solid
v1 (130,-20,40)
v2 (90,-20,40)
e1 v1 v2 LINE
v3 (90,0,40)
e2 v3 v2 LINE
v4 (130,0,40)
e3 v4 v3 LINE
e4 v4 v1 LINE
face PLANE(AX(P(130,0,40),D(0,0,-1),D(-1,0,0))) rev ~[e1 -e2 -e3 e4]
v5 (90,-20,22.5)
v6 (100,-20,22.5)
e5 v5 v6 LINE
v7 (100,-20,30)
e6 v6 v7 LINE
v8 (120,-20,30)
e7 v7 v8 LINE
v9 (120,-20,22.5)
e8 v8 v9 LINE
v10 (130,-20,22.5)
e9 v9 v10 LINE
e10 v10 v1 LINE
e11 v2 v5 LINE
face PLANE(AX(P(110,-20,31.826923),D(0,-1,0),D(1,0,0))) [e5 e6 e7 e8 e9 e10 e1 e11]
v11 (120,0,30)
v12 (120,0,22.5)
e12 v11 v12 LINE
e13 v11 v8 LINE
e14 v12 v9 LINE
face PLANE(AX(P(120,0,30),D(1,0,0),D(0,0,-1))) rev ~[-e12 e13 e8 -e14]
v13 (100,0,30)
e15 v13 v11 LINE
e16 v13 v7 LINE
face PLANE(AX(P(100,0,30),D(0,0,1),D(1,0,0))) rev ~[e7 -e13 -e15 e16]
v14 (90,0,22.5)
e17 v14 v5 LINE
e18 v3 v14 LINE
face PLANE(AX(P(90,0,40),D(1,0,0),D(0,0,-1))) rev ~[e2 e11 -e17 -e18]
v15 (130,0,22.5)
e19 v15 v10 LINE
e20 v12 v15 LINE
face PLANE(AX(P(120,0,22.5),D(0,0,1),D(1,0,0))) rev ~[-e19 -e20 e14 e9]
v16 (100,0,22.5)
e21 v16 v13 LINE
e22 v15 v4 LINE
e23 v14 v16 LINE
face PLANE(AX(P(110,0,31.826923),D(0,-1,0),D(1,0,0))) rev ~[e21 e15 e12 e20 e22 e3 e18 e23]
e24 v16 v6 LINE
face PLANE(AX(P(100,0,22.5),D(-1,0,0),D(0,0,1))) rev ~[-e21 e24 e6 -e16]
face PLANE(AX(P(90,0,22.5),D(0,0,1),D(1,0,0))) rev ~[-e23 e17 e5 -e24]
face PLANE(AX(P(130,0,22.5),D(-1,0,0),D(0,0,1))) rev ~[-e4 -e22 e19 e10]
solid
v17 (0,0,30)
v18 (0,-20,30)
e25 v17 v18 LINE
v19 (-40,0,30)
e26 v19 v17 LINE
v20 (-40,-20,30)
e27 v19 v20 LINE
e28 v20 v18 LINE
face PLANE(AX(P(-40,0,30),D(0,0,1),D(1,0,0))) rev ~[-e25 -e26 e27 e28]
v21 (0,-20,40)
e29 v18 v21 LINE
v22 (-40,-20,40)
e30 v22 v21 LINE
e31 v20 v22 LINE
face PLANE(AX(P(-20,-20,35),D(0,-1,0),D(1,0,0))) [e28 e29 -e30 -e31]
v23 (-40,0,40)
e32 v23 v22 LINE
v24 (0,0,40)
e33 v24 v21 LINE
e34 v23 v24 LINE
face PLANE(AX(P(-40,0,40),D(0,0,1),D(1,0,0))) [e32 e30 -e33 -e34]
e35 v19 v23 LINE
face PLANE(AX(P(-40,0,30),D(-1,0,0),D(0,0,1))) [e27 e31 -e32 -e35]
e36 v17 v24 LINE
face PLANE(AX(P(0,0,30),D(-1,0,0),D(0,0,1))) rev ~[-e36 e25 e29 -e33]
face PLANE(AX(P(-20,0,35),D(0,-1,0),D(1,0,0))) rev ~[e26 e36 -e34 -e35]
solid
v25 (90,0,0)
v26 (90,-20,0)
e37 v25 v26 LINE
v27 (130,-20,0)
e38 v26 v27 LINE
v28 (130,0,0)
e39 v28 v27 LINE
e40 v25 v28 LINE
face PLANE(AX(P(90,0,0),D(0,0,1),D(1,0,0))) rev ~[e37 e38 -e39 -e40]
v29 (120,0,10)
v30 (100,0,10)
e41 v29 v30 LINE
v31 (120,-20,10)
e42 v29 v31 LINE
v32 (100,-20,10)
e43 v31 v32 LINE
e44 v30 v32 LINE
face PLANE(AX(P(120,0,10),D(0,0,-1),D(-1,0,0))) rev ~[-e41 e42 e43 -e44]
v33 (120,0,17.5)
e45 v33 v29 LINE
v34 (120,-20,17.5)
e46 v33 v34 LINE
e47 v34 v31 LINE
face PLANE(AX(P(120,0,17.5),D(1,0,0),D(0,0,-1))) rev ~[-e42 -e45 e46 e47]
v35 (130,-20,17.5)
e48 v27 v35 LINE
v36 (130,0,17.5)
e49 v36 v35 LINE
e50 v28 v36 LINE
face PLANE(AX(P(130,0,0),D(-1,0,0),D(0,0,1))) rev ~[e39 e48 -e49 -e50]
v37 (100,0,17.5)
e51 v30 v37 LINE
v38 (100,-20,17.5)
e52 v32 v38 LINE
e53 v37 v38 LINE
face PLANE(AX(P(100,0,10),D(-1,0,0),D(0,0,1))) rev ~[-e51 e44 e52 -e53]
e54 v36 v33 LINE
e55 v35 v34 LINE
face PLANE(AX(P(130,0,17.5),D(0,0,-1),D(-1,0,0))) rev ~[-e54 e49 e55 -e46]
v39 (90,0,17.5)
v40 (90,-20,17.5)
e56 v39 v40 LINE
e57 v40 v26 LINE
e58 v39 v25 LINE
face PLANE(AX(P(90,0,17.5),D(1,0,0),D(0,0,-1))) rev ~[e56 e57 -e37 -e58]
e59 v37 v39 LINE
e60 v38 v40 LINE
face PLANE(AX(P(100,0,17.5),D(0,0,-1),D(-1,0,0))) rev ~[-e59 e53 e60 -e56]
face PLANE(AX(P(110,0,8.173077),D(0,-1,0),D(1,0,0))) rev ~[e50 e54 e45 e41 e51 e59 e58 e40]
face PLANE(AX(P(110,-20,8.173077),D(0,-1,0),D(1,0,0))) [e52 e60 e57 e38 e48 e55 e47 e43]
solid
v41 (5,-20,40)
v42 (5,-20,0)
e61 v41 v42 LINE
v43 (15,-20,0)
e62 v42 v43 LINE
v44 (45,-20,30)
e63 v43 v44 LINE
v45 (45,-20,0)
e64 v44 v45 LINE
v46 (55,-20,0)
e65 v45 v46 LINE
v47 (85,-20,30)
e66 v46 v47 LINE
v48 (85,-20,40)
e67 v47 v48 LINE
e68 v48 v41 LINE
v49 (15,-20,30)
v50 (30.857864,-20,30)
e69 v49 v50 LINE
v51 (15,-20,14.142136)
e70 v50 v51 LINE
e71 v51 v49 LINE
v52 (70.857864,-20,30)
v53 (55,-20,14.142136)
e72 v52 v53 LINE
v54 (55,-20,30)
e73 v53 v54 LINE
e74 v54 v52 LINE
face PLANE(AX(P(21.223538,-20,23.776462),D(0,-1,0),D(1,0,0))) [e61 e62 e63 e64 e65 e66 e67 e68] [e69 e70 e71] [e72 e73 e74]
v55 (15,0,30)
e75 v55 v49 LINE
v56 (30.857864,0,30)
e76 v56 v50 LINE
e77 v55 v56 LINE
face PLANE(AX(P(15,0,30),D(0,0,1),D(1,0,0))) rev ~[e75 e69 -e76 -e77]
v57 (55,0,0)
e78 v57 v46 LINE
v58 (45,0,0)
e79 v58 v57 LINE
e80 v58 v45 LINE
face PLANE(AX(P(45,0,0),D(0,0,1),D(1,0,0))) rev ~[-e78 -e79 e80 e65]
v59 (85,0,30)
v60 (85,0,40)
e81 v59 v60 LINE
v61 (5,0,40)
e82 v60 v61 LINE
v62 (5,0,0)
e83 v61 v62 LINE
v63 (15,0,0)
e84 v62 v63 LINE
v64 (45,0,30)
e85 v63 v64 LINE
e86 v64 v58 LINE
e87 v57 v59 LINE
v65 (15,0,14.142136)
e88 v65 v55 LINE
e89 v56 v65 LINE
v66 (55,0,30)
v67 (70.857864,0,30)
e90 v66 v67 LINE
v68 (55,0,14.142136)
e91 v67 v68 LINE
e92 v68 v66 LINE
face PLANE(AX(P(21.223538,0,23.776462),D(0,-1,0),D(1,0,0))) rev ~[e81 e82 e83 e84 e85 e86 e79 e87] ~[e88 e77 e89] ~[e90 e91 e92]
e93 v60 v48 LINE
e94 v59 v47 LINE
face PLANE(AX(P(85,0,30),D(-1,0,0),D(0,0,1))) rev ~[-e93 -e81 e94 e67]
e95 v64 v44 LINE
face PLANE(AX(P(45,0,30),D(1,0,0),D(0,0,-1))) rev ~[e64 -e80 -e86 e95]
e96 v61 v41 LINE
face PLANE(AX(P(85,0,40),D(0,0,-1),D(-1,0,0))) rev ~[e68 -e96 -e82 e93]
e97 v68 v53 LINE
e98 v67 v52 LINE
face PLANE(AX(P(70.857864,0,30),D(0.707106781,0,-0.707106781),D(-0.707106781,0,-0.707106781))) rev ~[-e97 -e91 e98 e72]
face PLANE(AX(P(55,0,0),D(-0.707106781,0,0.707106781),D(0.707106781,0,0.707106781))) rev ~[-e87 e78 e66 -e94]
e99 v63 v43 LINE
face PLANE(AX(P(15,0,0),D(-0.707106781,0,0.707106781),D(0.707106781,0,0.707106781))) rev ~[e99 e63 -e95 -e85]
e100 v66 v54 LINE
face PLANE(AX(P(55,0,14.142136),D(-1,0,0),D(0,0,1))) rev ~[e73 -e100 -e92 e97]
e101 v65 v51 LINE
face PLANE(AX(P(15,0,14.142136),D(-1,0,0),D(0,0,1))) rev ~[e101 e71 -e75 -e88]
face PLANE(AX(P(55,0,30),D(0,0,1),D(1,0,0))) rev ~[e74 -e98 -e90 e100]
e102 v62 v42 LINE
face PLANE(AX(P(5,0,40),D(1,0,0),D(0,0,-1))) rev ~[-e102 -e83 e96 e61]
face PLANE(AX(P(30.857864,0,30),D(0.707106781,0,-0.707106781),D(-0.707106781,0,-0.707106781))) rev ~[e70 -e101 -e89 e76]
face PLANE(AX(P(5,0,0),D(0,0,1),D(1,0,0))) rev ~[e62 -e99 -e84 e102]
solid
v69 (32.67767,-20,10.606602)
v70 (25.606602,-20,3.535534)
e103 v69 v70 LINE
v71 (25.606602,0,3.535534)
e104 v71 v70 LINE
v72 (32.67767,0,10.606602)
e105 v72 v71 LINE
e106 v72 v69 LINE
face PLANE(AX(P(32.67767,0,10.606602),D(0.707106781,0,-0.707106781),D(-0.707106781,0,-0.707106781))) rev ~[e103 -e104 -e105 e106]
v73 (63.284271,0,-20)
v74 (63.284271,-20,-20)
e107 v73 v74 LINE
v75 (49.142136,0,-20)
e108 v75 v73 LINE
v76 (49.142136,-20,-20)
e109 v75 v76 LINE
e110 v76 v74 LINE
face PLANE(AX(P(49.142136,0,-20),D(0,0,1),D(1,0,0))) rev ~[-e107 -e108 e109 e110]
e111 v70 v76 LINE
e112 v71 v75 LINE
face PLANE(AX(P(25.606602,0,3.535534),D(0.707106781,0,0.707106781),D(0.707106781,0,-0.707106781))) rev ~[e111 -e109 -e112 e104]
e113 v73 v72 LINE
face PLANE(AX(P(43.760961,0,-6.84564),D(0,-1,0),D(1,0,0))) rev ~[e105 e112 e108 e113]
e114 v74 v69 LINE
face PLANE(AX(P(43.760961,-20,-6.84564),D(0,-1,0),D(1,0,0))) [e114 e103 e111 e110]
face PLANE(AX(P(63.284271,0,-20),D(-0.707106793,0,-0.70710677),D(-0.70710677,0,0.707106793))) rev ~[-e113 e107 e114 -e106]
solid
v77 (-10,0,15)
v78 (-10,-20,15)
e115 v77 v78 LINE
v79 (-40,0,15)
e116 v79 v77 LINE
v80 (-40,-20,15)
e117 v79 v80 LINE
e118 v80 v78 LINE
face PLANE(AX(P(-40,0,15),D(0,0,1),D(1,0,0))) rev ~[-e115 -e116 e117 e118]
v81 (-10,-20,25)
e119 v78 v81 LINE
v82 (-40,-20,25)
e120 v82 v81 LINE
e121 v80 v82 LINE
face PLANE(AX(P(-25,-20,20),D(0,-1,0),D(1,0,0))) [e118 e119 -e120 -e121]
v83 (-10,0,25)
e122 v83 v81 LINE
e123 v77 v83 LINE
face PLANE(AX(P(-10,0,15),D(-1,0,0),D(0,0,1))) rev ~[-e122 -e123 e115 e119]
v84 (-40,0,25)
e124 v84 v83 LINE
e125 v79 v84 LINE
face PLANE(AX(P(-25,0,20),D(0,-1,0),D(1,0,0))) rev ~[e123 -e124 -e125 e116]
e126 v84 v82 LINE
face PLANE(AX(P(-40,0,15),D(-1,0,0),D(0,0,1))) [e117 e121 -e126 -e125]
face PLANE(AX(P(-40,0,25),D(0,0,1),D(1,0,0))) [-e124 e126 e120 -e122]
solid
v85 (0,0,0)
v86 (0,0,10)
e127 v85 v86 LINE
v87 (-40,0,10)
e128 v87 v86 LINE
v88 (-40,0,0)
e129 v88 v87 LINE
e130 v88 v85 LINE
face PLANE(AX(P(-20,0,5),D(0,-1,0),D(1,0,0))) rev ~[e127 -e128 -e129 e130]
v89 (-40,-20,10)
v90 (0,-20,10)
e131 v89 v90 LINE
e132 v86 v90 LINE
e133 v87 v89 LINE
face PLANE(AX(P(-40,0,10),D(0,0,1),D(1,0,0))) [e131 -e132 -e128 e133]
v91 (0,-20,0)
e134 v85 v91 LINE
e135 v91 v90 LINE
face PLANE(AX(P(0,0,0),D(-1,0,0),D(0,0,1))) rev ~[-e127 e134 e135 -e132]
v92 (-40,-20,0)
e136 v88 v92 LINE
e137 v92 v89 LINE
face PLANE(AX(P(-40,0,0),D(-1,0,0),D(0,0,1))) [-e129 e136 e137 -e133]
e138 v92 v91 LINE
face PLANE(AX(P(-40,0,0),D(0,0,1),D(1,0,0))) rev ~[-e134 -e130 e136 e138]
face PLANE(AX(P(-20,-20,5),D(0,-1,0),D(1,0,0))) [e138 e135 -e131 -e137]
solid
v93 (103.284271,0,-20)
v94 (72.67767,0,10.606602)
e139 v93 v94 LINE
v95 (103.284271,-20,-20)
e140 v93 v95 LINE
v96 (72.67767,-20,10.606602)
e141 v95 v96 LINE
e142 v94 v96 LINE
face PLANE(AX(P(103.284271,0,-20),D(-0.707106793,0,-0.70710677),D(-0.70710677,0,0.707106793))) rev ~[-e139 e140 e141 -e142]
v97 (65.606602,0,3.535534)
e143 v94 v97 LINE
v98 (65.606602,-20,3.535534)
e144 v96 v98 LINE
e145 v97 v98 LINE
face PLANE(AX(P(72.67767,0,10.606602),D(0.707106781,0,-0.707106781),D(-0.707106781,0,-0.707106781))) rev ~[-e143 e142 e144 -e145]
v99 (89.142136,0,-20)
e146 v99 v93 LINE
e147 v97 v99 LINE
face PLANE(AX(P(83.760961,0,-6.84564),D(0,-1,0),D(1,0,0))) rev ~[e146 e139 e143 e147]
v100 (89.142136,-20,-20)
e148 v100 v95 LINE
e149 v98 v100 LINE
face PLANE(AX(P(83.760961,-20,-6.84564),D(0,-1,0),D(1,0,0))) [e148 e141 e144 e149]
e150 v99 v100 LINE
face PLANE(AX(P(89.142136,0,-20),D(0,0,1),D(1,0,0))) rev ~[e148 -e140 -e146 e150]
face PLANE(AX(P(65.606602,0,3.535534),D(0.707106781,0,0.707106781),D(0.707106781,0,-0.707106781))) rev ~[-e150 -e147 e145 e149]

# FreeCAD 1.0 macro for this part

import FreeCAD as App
import Part
import Sketcher

V = App.Vector


def add_polygon(sketch, points):
    """Adds a closed chain of lines whose ends are joined by coincident constraints."""
    first, n = sketch.GeometryCount, len(points)
    for a, b in zip(points, points[1:] + points[:1]):
        sketch.addGeometry(Part.LineSegment(App.Vector(*a, 0), App.Vector(*b, 0)), False)
    for i in range(n):
        sketch.addConstraint(Sketcher.Constraint("Coincident", first + i, 2, first + (i + 1) % n, 1))

doc = App.newDocument("Part")
params = doc.addObject("Spreadsheet::Sheet", "Params")
for row, (alias, value) in enumerate([
    ("sketch1_width", "30 mm"),
    ("sketch1_width2", "40 mm"),
    ("sketch1_length", "10 mm"),
    ("sketch1_height", "17.5 mm"),
    ("pad1_length", "20 mm"),
], start=1):
    params.set(f"A{row}", alias)
    params.set(f"B{row}", "=" + value)
    params.setAlias(f"B{row}", alias)

body = doc.addObject("PartDesign::Body", "Body")
body.AllowCompound = True

# Sketch on XZ plane
sketch1 = doc.addObject("Sketcher::SketchObject", "Sketch")
body.addObject(sketch1)
sketch1.AttachmentSupport = (doc.XZ_Plane, [""])
sketch1.MapMode = "FlatFace"
add_polygon(sketch1, [(-40, 25), (-40, 15), (-10, 15), (-10, 25)])  # lines 0-3
add_polygon(sketch1, [(-40, 40), (-40, 30), (0, 30), (0, 40)])  # lines 4-7
add_polygon(sketch1, [(-40, 10), (-40, 0), (0, 0), (0, 10)])  # lines 8-11
add_polygon(sketch1, [(5, 40), (5, 0), (15, 0), (45, 30), (45, 0), (55, 0), (85, 30), (85, 40)])  # lines 12-19
add_polygon(sketch1, [(31, 30), (15, 14), (15, 30)])  # lines 20-22
add_polygon(sketch1, [(71, 30), (55, 14), (55, 30)])  # lines 23-25
add_polygon(sketch1, [(33, 11), (26, 4), (49, -20), (63, -20)])  # lines 26-29
add_polygon(sketch1, [(73, 11), (66, 4), (89, -20), (103, -20)])  # lines 30-33
add_polygon(sketch1, [(130, 40), (90, 40), (90, 22), (100, 22), (100, 30), (120, 30), (120, 22), (130, 22)])  # lines 34-41
add_polygon(sketch1, [(90, 18), (90, 0), (130, 0), (130, 18), (120, 18), (120, 10), (100, 10), (100, 18)])  # lines 42-49
sketch1.addConstraint([
    Sketcher.Constraint("Vertical", 0),
    Sketcher.Constraint("Horizontal", 1),
    Sketcher.Constraint("Vertical", 2),
    Sketcher.Constraint("Horizontal", 3),
    Sketcher.Constraint("Vertical", 4),
    Sketcher.Constraint("Horizontal", 5),
    Sketcher.Constraint("Vertical", 6),
    Sketcher.Constraint("Horizontal", 7),
    Sketcher.Constraint("Vertical", 8),
    Sketcher.Constraint("Horizontal", 9),
    Sketcher.Constraint("Vertical", 10),
    Sketcher.Constraint("Horizontal", 11),
    Sketcher.Constraint("Vertical", 12),
    Sketcher.Constraint("Horizontal", 13),
    Sketcher.Constraint("Vertical", 15),
    Sketcher.Constraint("Horizontal", 16),
    Sketcher.Constraint("Vertical", 18),
    Sketcher.Constraint("Horizontal", 19),
    Sketcher.Constraint("Vertical", 21),
    Sketcher.Constraint("Horizontal", 22),
    Sketcher.Constraint("Vertical", 24),
    Sketcher.Constraint("Horizontal", 25),
    Sketcher.Constraint("Horizontal", 28),
    Sketcher.Constraint("Horizontal", 32),
    Sketcher.Constraint("Horizontal", 34),
    Sketcher.Constraint("Vertical", 35),
    Sketcher.Constraint("Horizontal", 36),
    Sketcher.Constraint("Vertical", 37),
    Sketcher.Constraint("Horizontal", 38),
    Sketcher.Constraint("Vertical", 39),
    Sketcher.Constraint("Horizontal", 40),
    Sketcher.Constraint("Vertical", 41),
    Sketcher.Constraint("Vertical", 42),
    Sketcher.Constraint("Horizontal", 43),
    Sketcher.Constraint("Vertical", 44),
    Sketcher.Constraint("Horizontal", 45),
    Sketcher.Constraint("Vertical", 46),
    Sketcher.Constraint("Horizontal", 47),
    Sketcher.Constraint("Vertical", 48),
    Sketcher.Constraint("Horizontal", 49),
    Sketcher.Constraint("Coincident", 9, 2, -1, 1),
    Sketcher.Constraint("PointOnObject", 5, 2, -2),
    Sketcher.Constraint("PointOnObject", 12, 2, -1),
    Sketcher.Constraint("PointOnObject", 15, 2, -1),
    Sketcher.Constraint("PointOnObject", 42, 2, -1),
    Sketcher.Constraint("Parallel", 14, 17),
    Sketcher.Constraint("Parallel", 17, 20),
    Sketcher.Constraint("Parallel", 20, 23),
    Sketcher.Constraint("Parallel", 23, 26),
    Sketcher.Constraint("Perpendicular", 26, 27),
    Sketcher.Constraint("Parallel", 27, 29),
    Sketcher.Constraint("Perpendicular", 29, 30),
    Sketcher.Constraint("Perpendicular", 30, 31),
    Sketcher.Constraint("Parallel", 31, 33),
    Sketcher.Constraint("Horizontal", 5, 2, 14, 2),
    Sketcher.Constraint("Horizontal", 14, 2, 17, 2),
    Sketcher.Constraint("Horizontal", 7, 2, 18, 2),
    Sketcher.Constraint("Horizontal", 17, 2, 21, 2),
    Sketcher.Constraint("Horizontal", 20, 2, 23, 2),
    Sketcher.Constraint("Horizontal", 22, 2, 24, 2),
    Sketcher.Constraint("Horizontal", 26, 2, 30, 2),
    Sketcher.Constraint("Horizontal", 28, 2, 31, 2),
    Sketcher.Constraint("Horizontal", 29, 2, 33, 2),
    Sketcher.Constraint("Horizontal", 19, 2, 34, 2),
    Sketcher.Constraint("Horizontal", 25, 2, 37, 2),
    Sketcher.Constraint("Horizontal", 36, 2, 39, 2),
    Sketcher.Constraint("Horizontal", 11, 2, 46, 2),
    Sketcher.Constraint("Horizontal", 45, 2, 48, 2),
    Sketcher.Constraint("Vertical", 3, 2, 4, 2),
    Sketcher.Constraint("Vertical", 7, 2, 8, 2),
    Sketcher.Constraint("Vertical", 13, 2, 20, 2),
    Sketcher.Constraint("Vertical", 16, 2, 23, 2),
    Sketcher.Constraint("Vertical", 35, 2, 42, 2),
    Sketcher.Constraint("Vertical", 41, 2, 43, 2),
    Sketcher.Constraint("Vertical", 39, 2, 45, 2),
    Sketcher.Constraint("Vertical", 37, 2, 47, 2),
    Sketcher.Constraint("Equal", 13, 16),
    Sketcher.Constraint("Equal", 11, 34),
    Sketcher.Constraint("Equal", 16, 36),
    Sketcher.Constraint("Equal", 36, 40),
    Sketcher.Constraint("Equal", 49, 0),
    Sketcher.Constraint("Equal", 2, 4),
    Sketcher.Constraint("Equal", 6, 8),
    Sketcher.Constraint("Equal", 43, 12),
    Sketcher.Constraint("Equal", 3, 15),
    Sketcher.Constraint("Equal", 25, 21),
    Sketcher.Constraint("Equal", 41, 42),
    Sketcher.Constraint("DistanceX", 1, 1, 1, 2, 30.0),
    Sketcher.Constraint("DistanceX", 5, 1, 5, 2, 40.0),
    Sketcher.Constraint("Distance", 26, 10.0),
    Sketcher.Constraint("DistanceY", 35, 2, 35, 1, 17.5),
    Sketcher.Constraint("DistanceY", -1, 1, 0, 2, 15.0),
    Sketcher.Constraint("DistanceX", -1, 1, 12, 2, 5.0),
    Sketcher.Constraint("DistanceY", 27, 2, -1, 1, 20.0),
    Sketcher.Constraint("DistanceX", -1, 1, 34, 2, 90.0),
    Sketcher.Constraint("DistanceX", 27, 2, 31, 2, 40.0),
    Sketcher.Constraint("DistanceX", -1, 1, 26, 2, 25.606602),
    Sketcher.Constraint("Distance", 27, 33.284271),
    Sketcher.Constraint("DistanceX", 22, 1, 22, 2, 15.857864),
])
sketch1.setExpression("Constraints[137]", "Params.sketch1_width")
sketch1.setExpression("Constraints[138]", "Params.sketch1_width2")
sketch1.setExpression("Constraints[139]", "Params.sketch1_length")
sketch1.setExpression("Constraints[140]", "Params.sketch1_height")
pad1 = doc.addObject("PartDesign::Pad", "Pad")
body.addObject(pad1)
pad1.Profile = sketch1
pad1.setExpression("Length", "Params.pad1_length")

doc.recompute()
